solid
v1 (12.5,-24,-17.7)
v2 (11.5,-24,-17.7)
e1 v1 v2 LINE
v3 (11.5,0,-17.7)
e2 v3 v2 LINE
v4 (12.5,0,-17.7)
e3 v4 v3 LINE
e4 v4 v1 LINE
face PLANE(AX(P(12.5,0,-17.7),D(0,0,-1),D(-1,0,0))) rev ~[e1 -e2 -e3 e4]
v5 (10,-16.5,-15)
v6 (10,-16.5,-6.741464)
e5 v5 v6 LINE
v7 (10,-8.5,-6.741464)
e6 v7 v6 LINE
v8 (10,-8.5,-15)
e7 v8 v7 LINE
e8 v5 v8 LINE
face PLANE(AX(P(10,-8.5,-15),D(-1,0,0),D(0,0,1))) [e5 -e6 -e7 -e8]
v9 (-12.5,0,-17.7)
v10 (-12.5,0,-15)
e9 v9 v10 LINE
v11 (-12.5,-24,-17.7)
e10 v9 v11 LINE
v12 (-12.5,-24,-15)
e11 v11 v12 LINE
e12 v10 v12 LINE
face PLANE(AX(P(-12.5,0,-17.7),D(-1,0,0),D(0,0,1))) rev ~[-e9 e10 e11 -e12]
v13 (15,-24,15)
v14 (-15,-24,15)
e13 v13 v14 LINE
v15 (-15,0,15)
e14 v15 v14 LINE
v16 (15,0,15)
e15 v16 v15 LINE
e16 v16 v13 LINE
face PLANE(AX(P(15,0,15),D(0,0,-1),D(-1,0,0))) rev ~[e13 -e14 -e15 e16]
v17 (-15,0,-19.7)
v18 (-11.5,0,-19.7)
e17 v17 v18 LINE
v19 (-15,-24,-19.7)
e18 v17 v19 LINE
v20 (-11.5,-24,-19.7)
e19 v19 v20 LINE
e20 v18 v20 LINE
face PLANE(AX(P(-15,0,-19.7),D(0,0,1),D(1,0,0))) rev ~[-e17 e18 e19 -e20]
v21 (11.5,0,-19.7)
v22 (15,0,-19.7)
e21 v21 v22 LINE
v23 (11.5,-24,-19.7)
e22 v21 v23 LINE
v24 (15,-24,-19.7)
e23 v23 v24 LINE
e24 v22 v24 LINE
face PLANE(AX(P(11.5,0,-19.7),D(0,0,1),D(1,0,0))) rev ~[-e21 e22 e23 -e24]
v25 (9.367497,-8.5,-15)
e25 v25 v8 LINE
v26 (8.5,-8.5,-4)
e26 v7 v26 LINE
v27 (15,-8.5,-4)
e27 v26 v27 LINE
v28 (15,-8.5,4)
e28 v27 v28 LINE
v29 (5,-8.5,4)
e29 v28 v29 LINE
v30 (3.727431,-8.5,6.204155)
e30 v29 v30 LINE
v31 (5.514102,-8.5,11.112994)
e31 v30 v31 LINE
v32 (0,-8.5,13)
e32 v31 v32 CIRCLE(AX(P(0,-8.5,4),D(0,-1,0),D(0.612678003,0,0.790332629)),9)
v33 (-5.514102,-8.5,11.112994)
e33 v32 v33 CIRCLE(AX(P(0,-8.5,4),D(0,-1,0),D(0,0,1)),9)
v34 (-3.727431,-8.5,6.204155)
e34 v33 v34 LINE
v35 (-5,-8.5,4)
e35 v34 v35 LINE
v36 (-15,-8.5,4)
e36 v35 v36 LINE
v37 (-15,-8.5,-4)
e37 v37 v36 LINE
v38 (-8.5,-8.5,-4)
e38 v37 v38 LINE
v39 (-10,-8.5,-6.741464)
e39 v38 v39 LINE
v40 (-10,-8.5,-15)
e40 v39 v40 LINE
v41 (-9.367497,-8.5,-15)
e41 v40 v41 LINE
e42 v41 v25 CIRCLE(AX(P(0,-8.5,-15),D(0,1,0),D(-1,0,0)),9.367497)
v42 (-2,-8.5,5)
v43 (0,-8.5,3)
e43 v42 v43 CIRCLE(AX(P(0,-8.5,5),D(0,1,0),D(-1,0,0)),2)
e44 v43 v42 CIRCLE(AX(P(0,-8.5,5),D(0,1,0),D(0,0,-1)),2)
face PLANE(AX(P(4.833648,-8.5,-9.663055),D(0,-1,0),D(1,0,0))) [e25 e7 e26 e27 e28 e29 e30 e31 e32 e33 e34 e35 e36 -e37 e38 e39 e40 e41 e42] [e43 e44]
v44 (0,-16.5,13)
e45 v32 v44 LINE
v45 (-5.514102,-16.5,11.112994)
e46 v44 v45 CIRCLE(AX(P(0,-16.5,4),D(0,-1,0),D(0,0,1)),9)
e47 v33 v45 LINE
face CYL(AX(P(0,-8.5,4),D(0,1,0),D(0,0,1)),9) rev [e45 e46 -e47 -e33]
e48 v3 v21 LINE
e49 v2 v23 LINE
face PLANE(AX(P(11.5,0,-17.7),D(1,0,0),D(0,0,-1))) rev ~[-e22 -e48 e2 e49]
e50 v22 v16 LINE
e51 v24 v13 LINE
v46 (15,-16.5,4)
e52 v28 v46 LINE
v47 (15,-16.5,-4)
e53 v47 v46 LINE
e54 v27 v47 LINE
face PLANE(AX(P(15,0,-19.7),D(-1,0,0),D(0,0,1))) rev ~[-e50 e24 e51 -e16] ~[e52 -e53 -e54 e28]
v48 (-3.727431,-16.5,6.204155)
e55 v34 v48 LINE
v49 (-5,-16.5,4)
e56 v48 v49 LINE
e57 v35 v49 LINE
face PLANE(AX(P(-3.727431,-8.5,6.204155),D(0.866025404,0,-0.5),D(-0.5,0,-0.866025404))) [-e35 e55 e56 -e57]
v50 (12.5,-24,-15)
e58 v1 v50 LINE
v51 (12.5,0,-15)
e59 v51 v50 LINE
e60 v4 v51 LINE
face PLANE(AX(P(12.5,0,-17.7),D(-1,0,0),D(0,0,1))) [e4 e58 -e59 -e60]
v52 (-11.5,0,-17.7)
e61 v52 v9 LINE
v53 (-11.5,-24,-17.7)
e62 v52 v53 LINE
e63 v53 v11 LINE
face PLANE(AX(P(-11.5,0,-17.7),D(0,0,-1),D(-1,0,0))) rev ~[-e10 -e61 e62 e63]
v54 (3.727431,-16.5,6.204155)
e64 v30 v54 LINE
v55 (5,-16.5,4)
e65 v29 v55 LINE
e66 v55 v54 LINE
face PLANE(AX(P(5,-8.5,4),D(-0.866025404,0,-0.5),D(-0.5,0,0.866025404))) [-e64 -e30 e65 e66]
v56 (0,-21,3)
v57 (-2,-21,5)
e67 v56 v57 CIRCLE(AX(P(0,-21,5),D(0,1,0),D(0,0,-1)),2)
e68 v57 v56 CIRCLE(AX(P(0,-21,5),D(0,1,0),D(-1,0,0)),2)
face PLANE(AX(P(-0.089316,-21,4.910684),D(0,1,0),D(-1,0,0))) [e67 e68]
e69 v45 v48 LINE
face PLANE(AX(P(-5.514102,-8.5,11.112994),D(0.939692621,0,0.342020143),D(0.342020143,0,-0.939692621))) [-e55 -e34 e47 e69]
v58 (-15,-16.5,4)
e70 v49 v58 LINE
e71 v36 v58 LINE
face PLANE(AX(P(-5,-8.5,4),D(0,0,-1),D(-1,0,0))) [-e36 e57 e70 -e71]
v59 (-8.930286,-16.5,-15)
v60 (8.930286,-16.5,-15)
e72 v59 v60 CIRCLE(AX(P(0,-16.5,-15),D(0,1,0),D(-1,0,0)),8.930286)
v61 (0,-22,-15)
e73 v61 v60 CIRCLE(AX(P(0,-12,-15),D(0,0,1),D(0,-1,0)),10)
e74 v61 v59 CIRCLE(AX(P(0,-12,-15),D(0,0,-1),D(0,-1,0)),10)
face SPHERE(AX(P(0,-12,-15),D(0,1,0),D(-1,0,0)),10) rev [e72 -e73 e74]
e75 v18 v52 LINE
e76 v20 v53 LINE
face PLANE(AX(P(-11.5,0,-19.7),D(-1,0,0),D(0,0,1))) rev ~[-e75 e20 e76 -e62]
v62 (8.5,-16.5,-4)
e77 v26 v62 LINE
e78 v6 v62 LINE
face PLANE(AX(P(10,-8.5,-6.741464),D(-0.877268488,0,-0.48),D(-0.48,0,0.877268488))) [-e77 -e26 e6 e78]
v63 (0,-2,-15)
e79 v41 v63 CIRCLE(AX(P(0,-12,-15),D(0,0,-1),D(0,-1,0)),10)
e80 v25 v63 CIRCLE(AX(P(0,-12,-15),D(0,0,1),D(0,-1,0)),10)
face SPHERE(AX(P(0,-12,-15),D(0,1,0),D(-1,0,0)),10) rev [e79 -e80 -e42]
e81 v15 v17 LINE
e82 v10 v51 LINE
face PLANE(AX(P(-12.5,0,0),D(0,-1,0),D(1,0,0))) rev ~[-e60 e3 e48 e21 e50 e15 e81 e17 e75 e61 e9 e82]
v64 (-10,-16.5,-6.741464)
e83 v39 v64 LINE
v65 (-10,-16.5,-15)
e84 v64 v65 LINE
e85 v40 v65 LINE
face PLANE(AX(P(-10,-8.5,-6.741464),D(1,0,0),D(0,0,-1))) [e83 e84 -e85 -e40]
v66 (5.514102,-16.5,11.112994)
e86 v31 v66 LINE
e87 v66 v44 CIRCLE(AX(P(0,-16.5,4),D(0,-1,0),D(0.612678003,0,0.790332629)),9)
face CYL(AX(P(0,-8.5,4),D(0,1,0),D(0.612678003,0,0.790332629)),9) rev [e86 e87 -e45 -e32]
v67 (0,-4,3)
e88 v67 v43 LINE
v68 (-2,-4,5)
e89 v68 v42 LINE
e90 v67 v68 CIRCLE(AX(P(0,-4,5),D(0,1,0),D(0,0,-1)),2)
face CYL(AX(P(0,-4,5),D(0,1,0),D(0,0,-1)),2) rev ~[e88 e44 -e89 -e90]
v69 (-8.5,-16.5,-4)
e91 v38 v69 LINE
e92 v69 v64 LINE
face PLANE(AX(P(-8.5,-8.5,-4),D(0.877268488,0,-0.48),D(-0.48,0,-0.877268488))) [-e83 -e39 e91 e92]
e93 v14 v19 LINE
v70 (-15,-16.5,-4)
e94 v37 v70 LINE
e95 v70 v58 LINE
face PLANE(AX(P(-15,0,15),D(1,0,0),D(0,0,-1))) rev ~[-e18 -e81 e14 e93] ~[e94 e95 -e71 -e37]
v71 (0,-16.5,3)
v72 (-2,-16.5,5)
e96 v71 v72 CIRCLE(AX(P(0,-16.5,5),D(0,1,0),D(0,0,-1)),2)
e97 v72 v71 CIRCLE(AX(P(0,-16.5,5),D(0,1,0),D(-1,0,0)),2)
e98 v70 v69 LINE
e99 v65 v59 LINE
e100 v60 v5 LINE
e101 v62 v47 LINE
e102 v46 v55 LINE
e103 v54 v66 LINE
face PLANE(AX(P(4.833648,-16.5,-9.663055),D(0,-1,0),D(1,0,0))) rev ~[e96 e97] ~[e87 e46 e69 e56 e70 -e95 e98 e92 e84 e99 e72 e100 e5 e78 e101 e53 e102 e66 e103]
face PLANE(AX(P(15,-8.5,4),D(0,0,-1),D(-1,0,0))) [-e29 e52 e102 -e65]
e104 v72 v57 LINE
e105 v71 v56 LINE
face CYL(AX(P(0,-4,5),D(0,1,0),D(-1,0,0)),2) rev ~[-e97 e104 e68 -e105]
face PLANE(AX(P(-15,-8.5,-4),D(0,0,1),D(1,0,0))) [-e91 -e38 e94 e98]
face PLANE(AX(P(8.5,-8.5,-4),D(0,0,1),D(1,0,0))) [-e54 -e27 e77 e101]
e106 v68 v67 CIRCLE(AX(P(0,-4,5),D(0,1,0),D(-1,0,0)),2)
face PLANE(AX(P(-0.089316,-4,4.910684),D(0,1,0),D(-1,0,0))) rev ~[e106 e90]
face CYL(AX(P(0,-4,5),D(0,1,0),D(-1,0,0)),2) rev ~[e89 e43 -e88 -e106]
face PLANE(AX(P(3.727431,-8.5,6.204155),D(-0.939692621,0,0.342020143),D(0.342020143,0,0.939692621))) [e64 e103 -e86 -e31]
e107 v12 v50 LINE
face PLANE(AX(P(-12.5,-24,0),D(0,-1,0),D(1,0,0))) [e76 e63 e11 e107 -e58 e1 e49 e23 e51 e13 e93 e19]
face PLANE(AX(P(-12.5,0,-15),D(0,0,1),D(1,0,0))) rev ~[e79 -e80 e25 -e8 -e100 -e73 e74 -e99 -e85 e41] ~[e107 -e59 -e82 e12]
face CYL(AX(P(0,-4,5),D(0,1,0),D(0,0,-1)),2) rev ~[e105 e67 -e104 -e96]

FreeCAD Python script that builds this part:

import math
import FreeCAD as App
import Part
import Sketcher

V = App.Vector
Q = App.Units.Quantity

doc = App.newDocument("Part")
body = doc.addObject("PartDesign::Body", "Body")

sketch1 = body.newObject("Sketcher::SketchObject", "Sketch")
sketch1.AttachmentSupport = (doc.getObject("XZ_Plane"), [""])
sketch1.MapMode = "FlatFace"
sketch1.addGeometry([
    Part.LineSegment(V(12.5, -15, 0), V(12.5, -17.7, 0)),
    Part.LineSegment(V(12.5, -17.7, 0), V(11.5, -17.7, 0)),
    Part.LineSegment(V(11.5, -17.7, 0), V(11.5, -19.7, 0)),
    Part.LineSegment(V(11.5, -19.7, 0), V(15, -19.7, 0)),
    Part.LineSegment(V(15, -19.7, 0), V(15, 15, 0)),
    Part.LineSegment(V(15, 15, 0), V(-15, 15, 0)),
    Part.LineSegment(V(-15, 15, 0), V(-15, -19.7, 0)),
    Part.LineSegment(V(-15, -19.7, 0), V(-11.5, -19.7, 0)),
    Part.LineSegment(V(-11.5, -19.7, 0), V(-11.5, -17.7, 0)),
    Part.LineSegment(V(-11.5, -17.7, 0), V(-12.5, -17.7, 0)),
    Part.LineSegment(V(-12.5, -17.7, 0), V(-12.5, -15, 0)),
    Part.LineSegment(V(-12.5, -15, 0), V(12.5, -15, 0)),
], False)
sketch1.addConstraint([
    Sketcher.Constraint("Coincident", 0, 2, 1, 1),
    Sketcher.Constraint("Coincident", 1, 2, 2, 1),
    Sketcher.Constraint("Coincident", 2, 2, 3, 1),
    Sketcher.Constraint("Coincident", 3, 2, 4, 1),
    Sketcher.Constraint("Coincident", 4, 2, 5, 1),
    Sketcher.Constraint("Coincident", 5, 2, 6, 1),
    Sketcher.Constraint("Coincident", 6, 2, 7, 1),
    Sketcher.Constraint("Coincident", 7, 2, 8, 1),
    Sketcher.Constraint("Coincident", 8, 2, 9, 1),
    Sketcher.Constraint("Coincident", 9, 2, 10, 1),
    Sketcher.Constraint("Coincident", 10, 2, 11, 1),
    Sketcher.Constraint("Coincident", 11, 2, 0, 1),
    Sketcher.Constraint("Vertical", 0),
    Sketcher.Constraint("Horizontal", 1),
    Sketcher.Constraint("Vertical", 2),
    Sketcher.Constraint("Horizontal", 3),
    Sketcher.Constraint("Vertical", 4),
    Sketcher.Constraint("Horizontal", 5),
    Sketcher.Constraint("Vertical", 6),
    Sketcher.Constraint("Horizontal", 7),
    Sketcher.Constraint("Vertical", 8),
    Sketcher.Constraint("Horizontal", 9),
    Sketcher.Constraint("Vertical", 10),
    Sketcher.Constraint("Horizontal", 11),
    Sketcher.Constraint("Symmetric", 3, 2, 6, 2, -2),
    Sketcher.Constraint("Symmetric", 1, 2, 8, 2, -2),
    Sketcher.Constraint("Equal", 1, 9),
    Sketcher.Constraint("DistanceX", 1, 2, 1, 1, Q("1 mm")),
    Sketcher.Constraint("DistanceX", 5, 2, 5, 1, Q("30 mm")),
    Sketcher.Constraint("DistanceX", 11, 1, 11, 2, Q("25 mm")),
    Sketcher.Constraint("DistanceY", 2, 2, 2, 1, Q("2 mm")),
    Sketcher.Constraint("DistanceY", 0, 2, 0, 1, Q("2.7 mm")),
    Sketcher.Constraint("DistanceY", 4, 1, 4, 2, Q("34.7 mm")),
    Sketcher.Constraint("DistanceY", -1, 1, 4, 2, Q("15 mm")),
])
pad1 = body.newObject("PartDesign::Pad", "Pad")
pad1.Profile = sketch1
pad1.Length = 24

sketch2 = body.newObject("Sketcher::SketchObject", "Sketch001")
sketch2.AttachmentSupport = (doc.getObject("XY_Plane"), [""])
sketch2.MapMode = "FlatFace"
sketch2.AttachmentOffset = App.Placement(V(0, 0, -15), App.Rotation())
sketch2.addGeometry([
    Part.ArcOfCircle(Part.Circle(V(0, -12, 0), V(0, 0, 1), 10), math.radians(90), math.radians(270)),
    Part.LineSegment(V(0, -2, 0), V(0, -22, 0)),
], False)
sketch2.addConstraint([
    Sketcher.Constraint("Coincident", 0, 1, 1, 1),
    Sketcher.Constraint("Coincident", 1, 2, 0, 2),
    Sketcher.Constraint("Vertical", 1),
    Sketcher.Constraint("PointOnObject", 0, 3, -2),
    Sketcher.Constraint("PointOnObject", 0, 1, -2),
    Sketcher.Constraint("Radius", 0, Q("10 mm")),
    Sketcher.Constraint("DistanceY", 0, 3, -1, 1, Q("12 mm")),
])
groove = body.newObject("PartDesign::Groove", "Groove")
groove.Profile = sketch2
groove.ReferenceAxis = (sketch2, ["V_Axis"])
groove.Angle = 360

sketch3 = body.newObject("Sketcher::SketchObject", "Sketch002")
sketch3.AttachmentSupport = (doc.getObject("XZ_Plane"), [""])
sketch3.MapMode = "FlatFace"
sketch3.AttachmentOffset = App.Placement(V(0, 0, 8.5), App.Rotation())
sketch3.addGeometry([
    Part.LineSegment(V(10, -6.7, 0), V(8.5, -4, 0)),
    Part.LineSegment(V(8.5, -4, 0), V(15, -4, 0)),
    Part.LineSegment(V(15, -4, 0), V(15, 4, 0)),
    Part.LineSegment(V(15, 4, 0), V(5, 4, 0)),
    Part.LineSegment(V(5, 4, 0), V(3.7, 6.2, 0)),
    Part.LineSegment(V(3.7, 6.2, 0), V(5.5, 11.1, 0)),
    Part.ArcOfCircle(Part.Circle(V(0, 4, 0), V(0, 0, 1), 9), math.radians(52), math.radians(90)),
    Part.ArcOfCircle(Part.Circle(V(0, 4, 0), V(0, 0, 1), 9), math.radians(90), math.radians(128)),
    Part.LineSegment(V(-5.5, 11.1, 0), V(-3.7, 6.2, 0)),
    Part.LineSegment(V(-3.7, 6.2, 0), V(-5, 4, 0)),
    Part.LineSegment(V(-5, 4, 0), V(-15, 4, 0)),
    Part.LineSegment(V(-15, 4, 0), V(-15, -4, 0)),
    Part.LineSegment(V(-15, -4, 0), V(-8.5, -4, 0)),
    Part.LineSegment(V(-8.5, -4, 0), V(-10, -6.7, 0)),
    Part.LineSegment(V(-10, -6.7, 0), V(-10, -15, 0)),
    Part.LineSegment(V(-10, -15, 0), V(10, -15, 0)),
    Part.LineSegment(V(10, -15, 0), V(10, -6.7, 0)),
], False)
sketch3.addConstraint([
    Sketcher.Constraint("Coincident", 0, 2, 1, 1),
    Sketcher.Constraint("Coincident", 1, 2, 2, 1),
    Sketcher.Constraint("Coincident", 2, 2, 3, 1),
    Sketcher.Constraint("Coincident", 3, 2, 4, 1),
    Sketcher.Constraint("Coincident", 4, 2, 5, 1),
    Sketcher.Constraint("Coincident", 5, 2, 6, 1),
    Sketcher.Constraint("Tangent", 6, 2, 7, 1),
    Sketcher.Constraint("Coincident", 7, 2, 8, 1),
    Sketcher.Constraint("Coincident", 8, 2, 9, 1),
    Sketcher.Constraint("Coincident", 9, 2, 10, 1),
    Sketcher.Constraint("Coincident", 10, 2, 11, 1),
    Sketcher.Constraint("Coincident", 11, 2, 12, 1),
    Sketcher.Constraint("Coincident", 12, 2, 13, 1),
    Sketcher.Constraint("Coincident", 13, 2, 14, 1),
    Sketcher.Constraint("Coincident", 14, 2, 15, 1),
    Sketcher.Constraint("Coincident", 15, 2, 16, 1),
    Sketcher.Constraint("Coincident", 16, 2, 0, 1),
    Sketcher.Constraint("Horizontal", 1),
    Sketcher.Constraint("Vertical", 2),
    Sketcher.Constraint("Horizontal", 3),
    Sketcher.Constraint("Horizontal", 10),
    Sketcher.Constraint("Vertical", 11),
    Sketcher.Constraint("Horizontal", 12),
    Sketcher.Constraint("Vertical", 14),
    Sketcher.Constraint("Horizontal", 15),
    Sketcher.Constraint("Vertical", 16),
    Sketcher.Constraint("Equal", 6, 7),
    Sketcher.Constraint("Symmetric", 1, 2, 10, 2, -1, 1),
    Sketcher.Constraint("Symmetric", 5, 2, 7, 2, -2),
    Sketcher.Constraint("Symmetric", 4, 2, 8, 2, -2),
    Sketcher.Constraint("Symmetric", 3, 2, 9, 2, -2),
    Sketcher.Constraint("Symmetric", 0, 2, 12, 2, -2),
    Sketcher.Constraint("Symmetric", 13, 2, 16, 2, -2),
    Sketcher.Constraint("PointOnObject", 6, 2, -2),
    Sketcher.Constraint("Horizontal", 7, 3, 2, 2),
    Sketcher.Constraint("Radius", 6, Q("9 mm")),
    Sketcher.Constraint("DistanceX", 3, 2, 3, 1, Q("10 mm")),
    Sketcher.Constraint("DistanceX", 15, 1, 15, 2, Q("20 mm")),
    Sketcher.Constraint("DistanceY", 2, 1, 2, 2, Q("8 mm")),
    Sketcher.Constraint("Angle", 4, Q("120 deg")),
    Sketcher.Constraint("Angle", 5, Q("70 deg")),
    Sketcher.Constraint("DistanceX", 1, 1, 1, 2, Q("6.5 mm")),
    Sketcher.Constraint("DistanceX", -1, 1, 1, 2, Q("15 mm")),
    Sketcher.Constraint("DistanceY", 14, 2, -1, 1, Q("15 mm")),
    Sketcher.Constraint("Distance", 0, Q("3.125 mm")),
    Sketcher.Constraint("Distance", 4, Q("2.545139 mm")),
])
pocket1 = body.newObject("PartDesign::Pocket", "Pocket")
pocket1.Profile = sketch3
pocket1.Length = 8
pocket1.Reversed = True

sketch4 = body.newObject("Sketcher::SketchObject", "Sketch003")
sketch4.AttachmentSupport = (doc.getObject("XZ_Plane"), [""])
sketch4.MapMode = "FlatFace"
sketch4.AttachmentOffset = App.Placement(V(0, 0, 4), App.Rotation())
sketch4.addGeometry([
    Part.ArcOfCircle(Part.Circle(V(0, 5, 0), V(0, 0, 1), 2), math.radians(180), math.radians(270)),
    Part.ArcOfCircle(Part.Circle(V(0, 5, 0), V(0, 0, 1), 2), math.radians(-90), math.radians(180)),
], False)
sketch4.addConstraint([
    Sketcher.Constraint("Tangent", 0, 1, 1, 2),
    Sketcher.Constraint("Coincident", 1, 1, 0, 2),
    Sketcher.Constraint("PointOnObject", 0, 3, -2),
    Sketcher.Constraint("PointOnObject", 1, 1, -2),
    Sketcher.Constraint("Horizontal", 1, 3, 0, 1),
    Sketcher.Constraint("Radius", 0, Q("2 mm")),
    Sketcher.Constraint("DistanceY", -1, 1, 0, 3, Q("5 mm")),
])
pocket2 = body.newObject("PartDesign::Pocket", "Pocket001")
pocket2.Profile = sketch4
pocket2.Length = 17
pocket2.Reversed = True

doc.recompute()
